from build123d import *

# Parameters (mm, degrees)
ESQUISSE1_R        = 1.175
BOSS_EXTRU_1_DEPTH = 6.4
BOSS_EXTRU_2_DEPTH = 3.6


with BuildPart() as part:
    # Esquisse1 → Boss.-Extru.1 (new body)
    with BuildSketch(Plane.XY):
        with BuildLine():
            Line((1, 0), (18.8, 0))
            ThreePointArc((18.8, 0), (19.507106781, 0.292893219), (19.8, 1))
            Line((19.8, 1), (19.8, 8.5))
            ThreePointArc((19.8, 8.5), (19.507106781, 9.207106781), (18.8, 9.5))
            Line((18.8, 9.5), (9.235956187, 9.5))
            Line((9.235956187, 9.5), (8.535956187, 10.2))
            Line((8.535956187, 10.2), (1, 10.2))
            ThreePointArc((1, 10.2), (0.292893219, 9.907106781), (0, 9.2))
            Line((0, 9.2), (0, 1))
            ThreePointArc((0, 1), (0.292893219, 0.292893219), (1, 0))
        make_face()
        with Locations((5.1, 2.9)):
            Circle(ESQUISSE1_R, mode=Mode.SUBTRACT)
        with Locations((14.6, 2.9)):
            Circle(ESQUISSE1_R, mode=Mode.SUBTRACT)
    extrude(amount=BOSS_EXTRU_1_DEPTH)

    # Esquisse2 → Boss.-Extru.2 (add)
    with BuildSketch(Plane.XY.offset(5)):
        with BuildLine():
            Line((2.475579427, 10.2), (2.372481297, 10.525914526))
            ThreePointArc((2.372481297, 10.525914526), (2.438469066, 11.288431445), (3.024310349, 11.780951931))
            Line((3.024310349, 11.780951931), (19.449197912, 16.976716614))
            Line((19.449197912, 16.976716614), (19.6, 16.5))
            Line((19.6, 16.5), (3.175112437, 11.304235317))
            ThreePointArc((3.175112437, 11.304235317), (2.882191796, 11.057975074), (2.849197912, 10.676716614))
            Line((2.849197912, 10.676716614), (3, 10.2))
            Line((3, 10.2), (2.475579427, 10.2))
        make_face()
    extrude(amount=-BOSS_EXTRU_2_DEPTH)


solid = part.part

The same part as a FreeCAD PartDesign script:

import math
import FreeCAD as App
import Part
import Sketcher
from FreeCAD import Vector
Q = App.Units.Quantity

doc = App.newDocument("Part")
body = doc.addObject("PartDesign::Body", "Body")

# Sketch on XY plane
sketch1 = body.newObject("Sketcher::SketchObject", "Sketch")
sketch1.AttachmentSupport = (doc.getObject("XY_Plane"), [""])
sketch1.MapMode = "FlatFace"
sketch1.addGeometry(Part.LineSegment(Vector(1, 0, 0), Vector(18.8, 0, 0)), False)
sketch1.addGeometry(Part.ArcOfCircle(Part.Circle(Vector(18.8, 1, 0), Vector(0, 0, 1), 1), math.radians(-90), math.radians(0)), False)
sketch1.addGeometry(Part.LineSegment(Vector(19.8, 1, 0), Vector(19.8, 8.5, 0)), False)
sketch1.addGeometry(Part.ArcOfCircle(Part.Circle(Vector(18.8, 8.5, 0), Vector(0, 0, 1), 1), math.radians(0), math.radians(90)), False)
sketch1.addGeometry(Part.LineSegment(Vector(18.8, 9.5, 0), Vector(9.2, 9.5, 0)), False)
sketch1.addGeometry(Part.LineSegment(Vector(9.2, 9.5, 0), Vector(8.5, 10.2, 0)), False)
sketch1.addGeometry(Part.LineSegment(Vector(8.5, 10.2, 0), Vector(1, 10.2, 0)), False)
sketch1.addGeometry(Part.ArcOfCircle(Part.Circle(Vector(1, 9.2, 0), Vector(0, 0, 1), 1), math.radians(90), math.radians(180)), False)
sketch1.addGeometry(Part.LineSegment(Vector(0, 9.2, 0), Vector(0, 1, 0)), False)
sketch1.addGeometry(Part.ArcOfCircle(Part.Circle(Vector(1, 1, 0), Vector(0, 0, 1), 1), math.radians(-180), math.radians(-90)), False)
sketch1.addGeometry(Part.Circle(Vector(5.1, 2.9, 0), Vector(0, 0, 1), 1.2), False)
sketch1.addGeometry(Part.Circle(Vector(14.6, 2.9, 0), Vector(0, 0, 1), 1.2), False)
sketch1.addConstraint(Sketcher.Constraint("Tangent", 0, 2, 1, 1))
sketch1.addConstraint(Sketcher.Constraint("Tangent", 1, 2, 2, 1))
sketch1.addConstraint(Sketcher.Constraint("Tangent", 2, 2, 3, 1))
sketch1.addConstraint(Sketcher.Constraint("Tangent", 3, 2, 4, 1))
sketch1.addConstraint(Sketcher.Constraint("Coincident", 4, 2, 5, 1))
sketch1.addConstraint(Sketcher.Constraint("Coincident", 5, 2, 6, 1))
sketch1.addConstraint(Sketcher.Constraint("Tangent", 6, 2, 7, 1))
sketch1.addConstraint(Sketcher.Constraint("Tangent", 7, 2, 8, 1))
sketch1.addConstraint(Sketcher.Constraint("Tangent", 8, 2, 9, 1))
sketch1.addConstraint(Sketcher.Constraint("Tangent", 9, 2, 0, 1))
sketch1.addConstraint(Sketcher.Constraint("Horizontal", 0))
sketch1.addConstraint(Sketcher.Constraint("Vertical", 2))
sketch1.addConstraint(Sketcher.Constraint("Horizontal", 4))
sketch1.addConstraint(Sketcher.Constraint("Horizontal", 6))
sketch1.addConstraint(Sketcher.Constraint("Vertical", 8))
sketch1.addConstraint(Sketcher.Constraint("Equal", 1, 3))
sketch1.addConstraint(Sketcher.Constraint("Equal", 3, 7))
sketch1.addConstraint(Sketcher.Constraint("Equal", 7, 9))
sketch1.addConstraint(Sketcher.Constraint("Equal", 10, 11))
sketch1.addConstraint(Sketcher.Constraint("PointOnObject", 0, 2, -1))
sketch1.addConstraint(Sketcher.Constraint("PointOnObject", 7, 2, -2))
sketch1.addConstraint(Sketcher.Constraint("Horizontal", 10, 3, 11, 3))
sketch1.addConstraint(Sketcher.Constraint("Radius", 1, 1.0))
sketch1.addConstraint(Sketcher.Constraint("Diameter", 10, 2.35))
sketch1.addConstraint(Sketcher.Constraint("Angle", 5, Q("135 deg")))
sketch1.addConstraint(Sketcher.Constraint("DistanceX", 0, 1, 0, 2, 17.8))
sketch1.addConstraint(Sketcher.Constraint("DistanceY", 2, 1, 2, 2, 7.5))
sketch1.addConstraint(Sketcher.Constraint("DistanceY", 8, 2, 8, 1, 8.2))
sketch1.addConstraint(Sketcher.Constraint("DistanceX", -1, 1, 10, 3, 5.1))
sketch1.addConstraint(Sketcher.Constraint("DistanceY", -1, 1, 10, 3, 2.9))
sketch1.addConstraint(Sketcher.Constraint("DistanceX", -1, 1, 11, 3, 14.6))
sketch1.addConstraint(Sketcher.Constraint("DistanceX", 4, 2, 4, 1, 9.564044))
pad1 = body.newObject("PartDesign::Pad", "Pad")
pad1.Profile = sketch1
pad1.Length = 6.4

# Sketch on XY plane
sketch2 = body.newObject("Sketcher::SketchObject", "Sketch001")
sketch2.AttachmentSupport = (doc.getObject("XY_Plane"), [""])
sketch2.MapMode = "FlatFace"
sketch2.AttachmentOffset = App.Placement(Vector(0, 0, 5), App.Rotation())
sketch2.addGeometry(Part.LineSegment(Vector(2.37, 10.53, 0), Vector(2.48, 10.2, 0)), False)
sketch2.addGeometry(Part.LineSegment(Vector(2.48, 10.2, 0), Vector(3, 10.2, 0)), False)
sketch2.addGeometry(Part.LineSegment(Vector(3, 10.2, 0), Vector(2.85, 10.68, 0)), False)
sketch2.addGeometry(Part.ArcOfCircle(Part.Circle(Vector(3.33, 10.83, 0), Vector(0, 0, 1), 0.5), math.radians(108), math.radians(198)), False)
sketch2.addGeometry(Part.LineSegment(Vector(3.18, 11.3, 0), Vector(19.6, 16.5, 0)), False)
sketch2.addGeometry(Part.LineSegment(Vector(19.6, 16.5, 0), Vector(19.45, 16.98, 0)), False)
sketch2.addGeometry(Part.LineSegment(Vector(19.45, 16.98, 0), Vector(3.02, 11.78, 0)), False)
sketch2.addGeometry(Part.ArcOfCircle(Part.Circle(Vector(3.33, 10.83, 0), Vector(0, 0, 1), 1), math.radians(108), math.radians(198)), False)
sketch2.addConstraint(Sketcher.Constraint("Coincident", 0, 2, 1, 1))
sketch2.addConstraint(Sketcher.Constraint("Coincident", 1, 2, 2, 1))
sketch2.addConstraint(Sketcher.Constraint("Tangent", 2, 2, 3, 2))
sketch2.addConstraint(Sketcher.Constraint("Tangent", 3, 1, 4, 1))
sketch2.addConstraint(Sketcher.Constraint("Coincident", 4, 2, 5, 1))
sketch2.addConstraint(Sketcher.Constraint("Coincident", 5, 2, 6, 1))
sketch2.addConstraint(Sketcher.Constraint("Tangent", 6, 2, 7, 1))
sketch2.addConstraint(Sketcher.Constraint("Tangent", 7, 2, 0, 1))
sketch2.addConstraint(Sketcher.Constraint("Horizontal", 1))
sketch2.addConstraint(Sketcher.Constraint("Coincident", 7, 3, 3, 3))
sketch2.addConstraint(Sketcher.Constraint("Parallel", 0, 2))
sketch2.addConstraint(Sketcher.Constraint("Perpendicular", 2, 4))
sketch2.addConstraint(Sketcher.Constraint("Perpendicular", 4, 5))
sketch2.addConstraint(Sketcher.Constraint("Perpendicular", 5, 6))
sketch2.addConstraint(Sketcher.Constraint("Equal", 2, 5))
sketch2.addConstraint(Sketcher.Constraint("Radius", 7, 1.0))
sketch2.addConstraint(Sketcher.Constraint("Radius", 3, 0.5))
sketch2.addConstraint(Sketcher.Constraint("DistanceX", -1, 1, 1, 2, 3.0))
sketch2.addConstraint(Sketcher.Constraint("DistanceY", -1, 1, 0, 2, 10.2))
sketch2.addConstraint(Sketcher.Constraint("DistanceX", -1, 1, 4, 2, 19.6))
sketch2.addConstraint(Sketcher.Constraint("DistanceY", -1, 1, 4, 2, 16.5))
pad2 = body.newObject("PartDesign::Pad", "Pad001")
pad2.Profile = sketch2
pad2.Length = 3.6
pad2.Reversed = True

doc.recompute()
